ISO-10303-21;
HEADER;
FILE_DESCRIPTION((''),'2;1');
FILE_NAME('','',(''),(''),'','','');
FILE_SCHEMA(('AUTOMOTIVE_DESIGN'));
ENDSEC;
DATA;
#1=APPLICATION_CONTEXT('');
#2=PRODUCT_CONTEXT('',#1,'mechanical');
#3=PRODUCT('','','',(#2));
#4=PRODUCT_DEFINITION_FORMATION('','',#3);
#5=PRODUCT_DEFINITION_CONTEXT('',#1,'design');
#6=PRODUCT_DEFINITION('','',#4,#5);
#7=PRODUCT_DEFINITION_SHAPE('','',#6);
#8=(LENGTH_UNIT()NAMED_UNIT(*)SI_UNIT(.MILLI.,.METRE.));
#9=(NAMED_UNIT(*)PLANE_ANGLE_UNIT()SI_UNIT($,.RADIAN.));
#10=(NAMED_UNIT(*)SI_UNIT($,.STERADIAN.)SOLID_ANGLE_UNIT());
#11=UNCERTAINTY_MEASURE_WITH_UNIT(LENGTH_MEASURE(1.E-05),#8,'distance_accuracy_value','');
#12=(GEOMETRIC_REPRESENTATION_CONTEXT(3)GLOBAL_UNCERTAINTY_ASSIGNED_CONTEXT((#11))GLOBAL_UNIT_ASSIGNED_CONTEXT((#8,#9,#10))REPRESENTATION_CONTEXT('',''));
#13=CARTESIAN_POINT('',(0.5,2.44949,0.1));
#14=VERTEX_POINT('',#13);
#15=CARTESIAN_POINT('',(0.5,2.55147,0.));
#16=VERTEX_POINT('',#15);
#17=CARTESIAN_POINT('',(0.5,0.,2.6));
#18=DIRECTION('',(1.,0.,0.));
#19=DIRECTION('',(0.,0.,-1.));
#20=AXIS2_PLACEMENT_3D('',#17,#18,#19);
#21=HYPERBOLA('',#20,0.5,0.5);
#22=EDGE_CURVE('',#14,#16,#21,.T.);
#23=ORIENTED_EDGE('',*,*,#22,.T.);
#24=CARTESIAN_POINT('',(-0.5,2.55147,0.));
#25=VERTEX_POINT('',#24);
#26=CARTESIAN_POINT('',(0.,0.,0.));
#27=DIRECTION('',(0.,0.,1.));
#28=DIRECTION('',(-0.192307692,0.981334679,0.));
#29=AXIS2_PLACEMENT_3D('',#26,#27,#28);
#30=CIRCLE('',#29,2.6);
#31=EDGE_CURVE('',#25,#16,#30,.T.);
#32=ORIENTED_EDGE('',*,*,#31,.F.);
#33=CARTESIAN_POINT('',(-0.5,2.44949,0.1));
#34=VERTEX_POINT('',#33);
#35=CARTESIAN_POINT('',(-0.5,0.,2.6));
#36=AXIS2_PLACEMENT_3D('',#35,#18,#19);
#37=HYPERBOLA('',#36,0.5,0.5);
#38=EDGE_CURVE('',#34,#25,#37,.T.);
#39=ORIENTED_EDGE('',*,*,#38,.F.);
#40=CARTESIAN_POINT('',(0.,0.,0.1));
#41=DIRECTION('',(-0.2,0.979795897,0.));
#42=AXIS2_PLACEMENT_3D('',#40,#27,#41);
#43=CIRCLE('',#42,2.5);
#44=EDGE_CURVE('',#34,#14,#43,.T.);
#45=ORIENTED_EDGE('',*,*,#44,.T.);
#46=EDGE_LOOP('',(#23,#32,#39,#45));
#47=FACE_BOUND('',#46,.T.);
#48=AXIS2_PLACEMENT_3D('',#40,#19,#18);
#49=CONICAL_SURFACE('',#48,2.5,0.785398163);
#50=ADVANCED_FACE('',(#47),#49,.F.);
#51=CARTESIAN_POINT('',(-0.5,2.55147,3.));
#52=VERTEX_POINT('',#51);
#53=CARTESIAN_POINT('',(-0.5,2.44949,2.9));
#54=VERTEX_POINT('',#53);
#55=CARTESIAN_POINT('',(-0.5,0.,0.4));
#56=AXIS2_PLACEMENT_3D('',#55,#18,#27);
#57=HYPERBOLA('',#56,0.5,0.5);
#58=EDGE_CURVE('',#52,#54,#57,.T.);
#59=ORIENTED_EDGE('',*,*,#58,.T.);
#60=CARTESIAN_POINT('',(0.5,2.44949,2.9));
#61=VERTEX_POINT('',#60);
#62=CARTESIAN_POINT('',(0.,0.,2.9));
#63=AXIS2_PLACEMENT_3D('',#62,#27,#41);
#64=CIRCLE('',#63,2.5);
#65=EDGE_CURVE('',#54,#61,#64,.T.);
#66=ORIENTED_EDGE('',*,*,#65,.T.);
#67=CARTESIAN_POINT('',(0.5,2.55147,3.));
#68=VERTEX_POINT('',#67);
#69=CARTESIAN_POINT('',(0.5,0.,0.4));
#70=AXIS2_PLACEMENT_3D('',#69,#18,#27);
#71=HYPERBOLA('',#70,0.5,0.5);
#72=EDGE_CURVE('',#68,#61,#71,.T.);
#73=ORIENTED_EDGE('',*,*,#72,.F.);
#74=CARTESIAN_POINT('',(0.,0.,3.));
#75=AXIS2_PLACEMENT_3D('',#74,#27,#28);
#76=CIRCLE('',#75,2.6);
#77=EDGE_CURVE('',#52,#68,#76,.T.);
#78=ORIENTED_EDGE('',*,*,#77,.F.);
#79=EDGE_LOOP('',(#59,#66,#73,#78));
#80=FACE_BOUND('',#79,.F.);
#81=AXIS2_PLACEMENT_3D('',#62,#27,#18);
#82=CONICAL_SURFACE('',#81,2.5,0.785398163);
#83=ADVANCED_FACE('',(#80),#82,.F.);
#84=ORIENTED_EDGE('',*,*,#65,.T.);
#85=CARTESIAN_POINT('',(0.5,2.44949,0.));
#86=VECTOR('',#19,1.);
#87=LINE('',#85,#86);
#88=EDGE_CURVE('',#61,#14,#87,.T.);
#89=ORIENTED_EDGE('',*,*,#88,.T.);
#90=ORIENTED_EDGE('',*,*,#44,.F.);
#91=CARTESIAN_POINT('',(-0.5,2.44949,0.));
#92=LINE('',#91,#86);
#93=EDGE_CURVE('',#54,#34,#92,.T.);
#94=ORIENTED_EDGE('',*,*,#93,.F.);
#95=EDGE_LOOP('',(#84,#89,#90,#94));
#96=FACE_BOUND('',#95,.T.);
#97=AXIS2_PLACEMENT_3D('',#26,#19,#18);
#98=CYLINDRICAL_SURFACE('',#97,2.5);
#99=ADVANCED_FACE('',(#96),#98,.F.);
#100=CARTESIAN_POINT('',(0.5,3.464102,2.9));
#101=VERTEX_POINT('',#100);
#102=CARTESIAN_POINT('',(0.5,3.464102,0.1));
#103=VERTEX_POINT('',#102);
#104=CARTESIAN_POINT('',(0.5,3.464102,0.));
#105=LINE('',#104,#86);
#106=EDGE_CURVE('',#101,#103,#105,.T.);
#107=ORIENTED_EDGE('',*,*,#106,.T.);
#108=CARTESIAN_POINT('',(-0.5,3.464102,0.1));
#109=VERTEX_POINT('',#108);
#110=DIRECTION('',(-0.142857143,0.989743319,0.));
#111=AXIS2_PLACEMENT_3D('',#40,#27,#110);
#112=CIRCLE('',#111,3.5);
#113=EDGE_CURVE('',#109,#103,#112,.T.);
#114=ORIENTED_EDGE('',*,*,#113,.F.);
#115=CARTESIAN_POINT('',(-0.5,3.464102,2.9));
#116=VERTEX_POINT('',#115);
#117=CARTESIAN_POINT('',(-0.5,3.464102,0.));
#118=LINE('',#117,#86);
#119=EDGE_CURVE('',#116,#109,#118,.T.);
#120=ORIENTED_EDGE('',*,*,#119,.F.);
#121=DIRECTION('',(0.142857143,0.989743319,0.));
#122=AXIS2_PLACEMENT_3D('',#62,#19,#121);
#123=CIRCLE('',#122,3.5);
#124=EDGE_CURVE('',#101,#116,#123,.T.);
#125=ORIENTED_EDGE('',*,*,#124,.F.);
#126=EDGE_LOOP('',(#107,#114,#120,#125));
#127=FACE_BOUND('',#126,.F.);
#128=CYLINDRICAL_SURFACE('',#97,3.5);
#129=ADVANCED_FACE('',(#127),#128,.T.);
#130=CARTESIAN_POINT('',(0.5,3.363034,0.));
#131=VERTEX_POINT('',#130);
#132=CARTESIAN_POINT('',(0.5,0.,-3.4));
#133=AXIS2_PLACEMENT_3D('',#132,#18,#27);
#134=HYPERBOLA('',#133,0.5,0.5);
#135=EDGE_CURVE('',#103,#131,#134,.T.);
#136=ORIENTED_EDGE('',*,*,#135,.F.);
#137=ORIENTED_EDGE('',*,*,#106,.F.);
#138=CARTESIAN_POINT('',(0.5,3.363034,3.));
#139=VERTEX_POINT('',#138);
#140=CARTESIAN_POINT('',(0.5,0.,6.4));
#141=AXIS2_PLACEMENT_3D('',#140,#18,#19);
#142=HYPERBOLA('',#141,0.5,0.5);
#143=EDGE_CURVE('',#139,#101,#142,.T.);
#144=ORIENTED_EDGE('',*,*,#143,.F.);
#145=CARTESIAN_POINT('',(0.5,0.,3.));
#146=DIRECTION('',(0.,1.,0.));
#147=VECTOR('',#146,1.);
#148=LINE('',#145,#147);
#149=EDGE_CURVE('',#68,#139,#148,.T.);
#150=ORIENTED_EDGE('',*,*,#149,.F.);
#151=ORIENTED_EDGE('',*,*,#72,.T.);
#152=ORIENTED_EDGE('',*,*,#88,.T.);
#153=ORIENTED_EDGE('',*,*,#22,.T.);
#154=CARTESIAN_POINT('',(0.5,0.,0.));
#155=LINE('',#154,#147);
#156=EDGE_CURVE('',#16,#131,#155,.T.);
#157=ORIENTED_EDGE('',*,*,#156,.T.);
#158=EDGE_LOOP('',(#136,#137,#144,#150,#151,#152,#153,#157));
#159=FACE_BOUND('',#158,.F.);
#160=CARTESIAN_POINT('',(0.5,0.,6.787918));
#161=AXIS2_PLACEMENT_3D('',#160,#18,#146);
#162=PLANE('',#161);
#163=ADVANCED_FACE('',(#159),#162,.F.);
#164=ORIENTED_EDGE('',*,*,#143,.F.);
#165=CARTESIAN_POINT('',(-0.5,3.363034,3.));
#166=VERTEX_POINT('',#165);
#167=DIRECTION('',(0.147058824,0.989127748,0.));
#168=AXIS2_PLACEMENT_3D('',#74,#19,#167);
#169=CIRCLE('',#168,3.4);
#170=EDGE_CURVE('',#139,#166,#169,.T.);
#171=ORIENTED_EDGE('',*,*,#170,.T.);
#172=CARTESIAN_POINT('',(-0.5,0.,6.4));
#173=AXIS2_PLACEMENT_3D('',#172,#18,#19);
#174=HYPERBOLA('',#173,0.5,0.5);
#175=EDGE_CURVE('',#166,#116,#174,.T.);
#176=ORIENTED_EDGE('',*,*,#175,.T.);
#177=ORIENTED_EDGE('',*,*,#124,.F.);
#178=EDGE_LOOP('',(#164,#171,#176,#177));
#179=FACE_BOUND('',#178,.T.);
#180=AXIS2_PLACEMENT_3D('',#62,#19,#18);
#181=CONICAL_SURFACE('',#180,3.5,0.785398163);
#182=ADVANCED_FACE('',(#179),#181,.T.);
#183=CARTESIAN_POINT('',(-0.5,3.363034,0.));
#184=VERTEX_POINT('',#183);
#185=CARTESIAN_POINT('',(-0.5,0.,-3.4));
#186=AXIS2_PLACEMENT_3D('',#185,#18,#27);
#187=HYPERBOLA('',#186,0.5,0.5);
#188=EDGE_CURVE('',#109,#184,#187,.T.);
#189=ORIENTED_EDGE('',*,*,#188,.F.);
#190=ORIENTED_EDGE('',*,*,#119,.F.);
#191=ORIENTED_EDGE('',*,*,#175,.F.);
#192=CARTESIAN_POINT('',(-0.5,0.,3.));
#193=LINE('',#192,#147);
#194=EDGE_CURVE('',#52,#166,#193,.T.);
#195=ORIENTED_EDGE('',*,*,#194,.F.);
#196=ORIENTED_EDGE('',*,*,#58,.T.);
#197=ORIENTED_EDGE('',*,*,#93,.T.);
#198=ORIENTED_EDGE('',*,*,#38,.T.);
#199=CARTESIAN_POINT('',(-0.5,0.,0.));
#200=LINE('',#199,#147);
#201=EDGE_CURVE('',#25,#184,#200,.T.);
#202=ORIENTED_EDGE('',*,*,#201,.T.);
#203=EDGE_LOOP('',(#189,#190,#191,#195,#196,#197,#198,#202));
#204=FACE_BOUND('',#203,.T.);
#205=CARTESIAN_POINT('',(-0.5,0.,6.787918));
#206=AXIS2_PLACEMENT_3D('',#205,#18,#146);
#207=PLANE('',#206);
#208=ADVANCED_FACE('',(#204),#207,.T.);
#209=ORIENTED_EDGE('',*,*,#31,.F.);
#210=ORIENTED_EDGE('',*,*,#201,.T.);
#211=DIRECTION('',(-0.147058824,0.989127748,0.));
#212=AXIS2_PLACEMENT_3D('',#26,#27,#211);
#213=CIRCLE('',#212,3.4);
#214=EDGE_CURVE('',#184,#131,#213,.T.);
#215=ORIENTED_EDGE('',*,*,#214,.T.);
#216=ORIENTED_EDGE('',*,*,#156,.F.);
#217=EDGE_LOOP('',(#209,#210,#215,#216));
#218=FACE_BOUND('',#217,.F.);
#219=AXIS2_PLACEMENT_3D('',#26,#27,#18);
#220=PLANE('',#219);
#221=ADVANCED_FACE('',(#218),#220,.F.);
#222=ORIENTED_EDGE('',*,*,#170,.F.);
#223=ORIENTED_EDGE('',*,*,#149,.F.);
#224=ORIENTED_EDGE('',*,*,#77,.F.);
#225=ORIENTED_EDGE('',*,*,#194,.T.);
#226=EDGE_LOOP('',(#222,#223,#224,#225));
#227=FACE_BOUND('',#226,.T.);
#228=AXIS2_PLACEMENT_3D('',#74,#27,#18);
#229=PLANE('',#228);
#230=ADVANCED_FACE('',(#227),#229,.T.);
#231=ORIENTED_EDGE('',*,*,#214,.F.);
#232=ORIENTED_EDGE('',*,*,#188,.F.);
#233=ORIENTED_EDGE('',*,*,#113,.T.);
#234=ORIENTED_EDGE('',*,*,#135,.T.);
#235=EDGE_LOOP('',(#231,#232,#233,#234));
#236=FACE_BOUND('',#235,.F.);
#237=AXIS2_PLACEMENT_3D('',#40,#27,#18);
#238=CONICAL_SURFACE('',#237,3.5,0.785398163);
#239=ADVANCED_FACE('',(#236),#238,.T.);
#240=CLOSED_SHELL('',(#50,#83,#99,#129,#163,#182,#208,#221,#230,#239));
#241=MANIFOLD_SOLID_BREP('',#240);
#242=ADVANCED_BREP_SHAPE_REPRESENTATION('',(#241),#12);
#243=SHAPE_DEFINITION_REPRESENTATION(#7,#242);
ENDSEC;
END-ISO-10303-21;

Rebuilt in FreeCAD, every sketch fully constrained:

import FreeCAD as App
import Part
import Sketcher
from FreeCAD import Vector
Q = App.Units.Quantity


def edges_at(feature, points):
    """Names of the edges that pass closest to the given points."""
    edges = feature.Shape.Edges
    near = lambda p: min(range(len(edges)), key=lambda i: edges[i].distToShape(Part.Vertex(*p))[0])
    return sorted({f"Edge{near(p) + 1}" for p in points})


def add_polygon(sketch, points):
    """Adds a closed chain of lines whose ends are joined by coincident constraints."""
    first, n = sketch.GeometryCount, len(points)
    for a, b in zip(points, points[1:] + points[:1]):
        sketch.addGeometry(Part.LineSegment(App.Vector(*a, 0), App.Vector(*b, 0)), False)
    for i in range(n):
        sketch.addConstraint(Sketcher.Constraint("Coincident", first + i, 2, first + (i + 1) % n, 1))

doc = App.newDocument("Part")
body = doc.addObject("PartDesign::Body", "Body")

# Sketch on XY plane
sketch1 = body.newObject("Sketcher::SketchObject", "Sketch")
sketch1.AttachmentSupport = (doc.getObject("XY_Plane"), [""])
sketch1.MapMode = "FlatFace"
sketch1.addGeometry([
    Part.Circle(Vector(0, 0, 0), Vector(0, 0, 1), 3.5),
    Part.Circle(Vector(0, 0, 0), Vector(0, 0, 1), 2.5),
], False)
sketch1.addConstraint([
    Sketcher.Constraint("Coincident", 0, 3, -1, 1),
    Sketcher.Constraint("Coincident", 1, 3, -1, 1),
    Sketcher.Constraint("Diameter", 0, Q("7 mm")),
    Sketcher.Constraint("Diameter", 1, Q("5 mm")),
])
pad1 = body.newObject("PartDesign::Pad", "Pad")
pad1.Profile = sketch1
pad1.Length = 3
doc.recompute()

chamfer = body.newObject("PartDesign::Chamfer", "Chamfer")
chamfer.Base = (pad1, edges_at(pad1, [
    (-3.5, 0, 0),
    (-2.5, 0, 0),
    (-3.5, 0, 3),
    (-2.5, 0, 3),
]))
chamfer.Size = 0.1

# Sketch on XY plane
sketch2 = body.newObject("Sketcher::SketchObject", "Sketch001")
sketch2.AttachmentSupport = (doc.getObject("XY_Plane"), [""])
sketch2.MapMode = "FlatFace"
add_polygon(sketch2, [(0.5, 3.5), (0.5, 0), (-0.5, 0), (-0.5, 3.5)])  # lines 0-3
sketch2.addConstraint([
    Sketcher.Constraint("Vertical", 0),
    Sketcher.Constraint("Horizontal", 1),
    Sketcher.Constraint("Vertical", 2),
    Sketcher.Constraint("Horizontal", 3),
    Sketcher.Constraint("Symmetric", 0, 2, 1, 2, -1, 1),
    Sketcher.Constraint("DistanceX", 1, 2, 1, 1, Q("1 mm")),
    Sketcher.Constraint("DistanceY", 0, 2, 0, 1, Q("3.5 mm")),
])
pocket1 = body.newObject("PartDesign::Pocket", "Pocket")
pocket1.Profile = sketch2
pocket1.Type = "ThroughAll"
pocket1.Midplane = True

doc.recompute()
